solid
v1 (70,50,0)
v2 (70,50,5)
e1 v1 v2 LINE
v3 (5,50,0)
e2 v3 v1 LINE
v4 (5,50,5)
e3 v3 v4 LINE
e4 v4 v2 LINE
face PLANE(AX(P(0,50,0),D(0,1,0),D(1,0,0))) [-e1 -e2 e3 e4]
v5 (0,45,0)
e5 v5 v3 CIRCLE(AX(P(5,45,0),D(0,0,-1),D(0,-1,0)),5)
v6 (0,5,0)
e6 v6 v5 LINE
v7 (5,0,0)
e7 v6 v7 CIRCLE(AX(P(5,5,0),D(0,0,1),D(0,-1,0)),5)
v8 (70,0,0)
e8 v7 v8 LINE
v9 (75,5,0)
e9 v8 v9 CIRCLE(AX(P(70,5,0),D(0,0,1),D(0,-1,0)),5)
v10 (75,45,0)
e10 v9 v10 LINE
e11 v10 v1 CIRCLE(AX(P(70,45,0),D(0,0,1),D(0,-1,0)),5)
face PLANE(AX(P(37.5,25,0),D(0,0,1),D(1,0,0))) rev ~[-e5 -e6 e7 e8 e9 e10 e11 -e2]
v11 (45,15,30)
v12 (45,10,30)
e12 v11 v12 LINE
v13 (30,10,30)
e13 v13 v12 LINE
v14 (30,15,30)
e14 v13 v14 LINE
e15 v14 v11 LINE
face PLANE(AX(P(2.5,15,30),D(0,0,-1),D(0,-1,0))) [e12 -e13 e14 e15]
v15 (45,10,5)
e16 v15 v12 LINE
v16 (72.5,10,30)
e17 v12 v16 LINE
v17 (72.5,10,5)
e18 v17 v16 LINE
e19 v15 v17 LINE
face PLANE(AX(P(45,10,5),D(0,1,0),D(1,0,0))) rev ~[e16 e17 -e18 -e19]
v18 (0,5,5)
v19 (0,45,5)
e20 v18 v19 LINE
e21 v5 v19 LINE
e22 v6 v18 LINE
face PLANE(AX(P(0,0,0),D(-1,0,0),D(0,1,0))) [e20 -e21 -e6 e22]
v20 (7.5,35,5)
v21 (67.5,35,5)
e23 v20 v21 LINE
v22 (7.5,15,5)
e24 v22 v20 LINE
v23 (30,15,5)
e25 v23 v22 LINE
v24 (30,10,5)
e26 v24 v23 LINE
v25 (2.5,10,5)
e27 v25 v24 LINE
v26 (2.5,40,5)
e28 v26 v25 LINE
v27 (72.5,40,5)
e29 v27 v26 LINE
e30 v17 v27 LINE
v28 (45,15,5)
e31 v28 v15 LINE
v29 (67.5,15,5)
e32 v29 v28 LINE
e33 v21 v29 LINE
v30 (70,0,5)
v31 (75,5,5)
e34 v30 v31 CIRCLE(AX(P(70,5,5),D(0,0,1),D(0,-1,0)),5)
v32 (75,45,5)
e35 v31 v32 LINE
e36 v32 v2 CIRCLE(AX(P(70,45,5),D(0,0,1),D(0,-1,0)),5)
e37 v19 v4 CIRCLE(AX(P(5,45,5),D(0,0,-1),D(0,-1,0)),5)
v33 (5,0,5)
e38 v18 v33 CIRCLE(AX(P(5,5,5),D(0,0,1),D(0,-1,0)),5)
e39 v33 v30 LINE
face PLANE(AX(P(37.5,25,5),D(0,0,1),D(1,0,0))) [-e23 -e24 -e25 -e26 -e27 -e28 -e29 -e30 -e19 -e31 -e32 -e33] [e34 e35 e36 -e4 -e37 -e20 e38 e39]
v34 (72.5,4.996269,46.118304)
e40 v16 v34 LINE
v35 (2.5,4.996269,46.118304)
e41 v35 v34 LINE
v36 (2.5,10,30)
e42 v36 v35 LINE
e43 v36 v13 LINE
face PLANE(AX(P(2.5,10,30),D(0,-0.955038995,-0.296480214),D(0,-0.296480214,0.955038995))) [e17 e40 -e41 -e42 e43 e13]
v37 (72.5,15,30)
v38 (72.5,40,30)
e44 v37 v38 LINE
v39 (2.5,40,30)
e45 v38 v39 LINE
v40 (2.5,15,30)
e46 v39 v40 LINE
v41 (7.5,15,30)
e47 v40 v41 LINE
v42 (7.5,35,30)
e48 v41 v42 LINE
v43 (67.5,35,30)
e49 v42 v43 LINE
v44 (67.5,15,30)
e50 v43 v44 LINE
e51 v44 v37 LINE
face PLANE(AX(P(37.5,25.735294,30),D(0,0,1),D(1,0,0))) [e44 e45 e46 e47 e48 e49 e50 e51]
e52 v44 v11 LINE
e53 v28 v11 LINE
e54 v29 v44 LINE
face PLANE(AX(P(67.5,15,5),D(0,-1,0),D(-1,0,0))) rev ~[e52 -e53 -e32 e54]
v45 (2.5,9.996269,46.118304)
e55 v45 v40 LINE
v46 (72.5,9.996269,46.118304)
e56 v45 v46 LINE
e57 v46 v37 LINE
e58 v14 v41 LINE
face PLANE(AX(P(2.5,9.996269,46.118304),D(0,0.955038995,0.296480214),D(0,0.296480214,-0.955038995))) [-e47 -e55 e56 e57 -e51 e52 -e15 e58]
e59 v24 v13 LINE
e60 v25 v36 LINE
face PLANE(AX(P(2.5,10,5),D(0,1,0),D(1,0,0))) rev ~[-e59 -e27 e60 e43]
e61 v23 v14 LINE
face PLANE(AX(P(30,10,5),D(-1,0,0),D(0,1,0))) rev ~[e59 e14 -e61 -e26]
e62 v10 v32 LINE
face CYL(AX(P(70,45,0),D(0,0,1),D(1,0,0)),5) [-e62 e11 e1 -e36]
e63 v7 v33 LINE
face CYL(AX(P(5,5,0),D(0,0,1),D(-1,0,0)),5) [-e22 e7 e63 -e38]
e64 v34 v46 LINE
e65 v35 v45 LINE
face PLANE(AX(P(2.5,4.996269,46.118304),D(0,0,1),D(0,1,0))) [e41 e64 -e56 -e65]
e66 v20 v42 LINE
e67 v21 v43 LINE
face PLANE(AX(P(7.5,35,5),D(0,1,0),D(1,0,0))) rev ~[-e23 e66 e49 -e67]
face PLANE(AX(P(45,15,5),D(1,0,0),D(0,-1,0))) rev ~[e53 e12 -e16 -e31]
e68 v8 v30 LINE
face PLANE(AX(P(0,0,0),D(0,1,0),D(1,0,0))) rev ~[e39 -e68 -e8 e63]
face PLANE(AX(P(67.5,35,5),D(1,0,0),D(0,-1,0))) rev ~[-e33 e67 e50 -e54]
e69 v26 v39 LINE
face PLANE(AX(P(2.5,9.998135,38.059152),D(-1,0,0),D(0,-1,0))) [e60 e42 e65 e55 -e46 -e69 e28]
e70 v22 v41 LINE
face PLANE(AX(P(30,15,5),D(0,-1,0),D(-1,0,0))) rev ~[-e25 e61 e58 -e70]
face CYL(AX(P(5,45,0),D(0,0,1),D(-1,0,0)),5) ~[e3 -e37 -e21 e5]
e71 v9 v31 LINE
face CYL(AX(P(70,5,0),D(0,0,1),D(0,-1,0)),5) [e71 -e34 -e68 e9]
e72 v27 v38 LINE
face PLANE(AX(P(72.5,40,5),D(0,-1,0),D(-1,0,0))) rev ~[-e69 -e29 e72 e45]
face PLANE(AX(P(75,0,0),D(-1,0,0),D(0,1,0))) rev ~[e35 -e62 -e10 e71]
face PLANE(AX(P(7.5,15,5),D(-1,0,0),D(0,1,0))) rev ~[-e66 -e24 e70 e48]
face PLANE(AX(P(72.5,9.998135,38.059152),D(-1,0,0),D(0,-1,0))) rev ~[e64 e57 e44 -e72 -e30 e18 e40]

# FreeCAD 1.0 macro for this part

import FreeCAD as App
import Part
import Sketcher
from FreeCAD import Vector


def edges_at(feature, points):
    """Names of the edges that pass closest to the given points."""
    edges = feature.Shape.Edges
    near = lambda p: min(range(len(edges)), key=lambda i: edges[i].distToShape(Part.Vertex(*p))[0])
    return sorted({f"Edge{near(p) + 1}" for p in points})

doc = App.newDocument("Part")
params = doc.addObject("Spreadsheet::Sheet", "Params")
for row, (alias, value) in enumerate([
    ("sketch1_width", "75 mm"),
    ("sketch1_height", "50 mm"),
    ("pad1_length", "5 mm"),
    ("fillet_radius", "5 mm"),
    ("sketch2_width", "60 mm"),
    ("sketch2_width2", "70 mm"),
    ("sketch2_height", "30 mm"),
    ("sketch2_height2", "5 mm"),
    ("sketch2_height3", "20 mm"),
    ("pad2_length", "25 mm"),
    ("sketch3_width", "5 mm"),
    ("pad3_length", "70 mm"),
], start=1):
    params.set(f"A{row}", alias)
    params.set(f"B{row}", "=" + value)
    params.setAlias(f"B{row}", alias)

body = doc.addObject("PartDesign::Body", "Body")

sketch1 = body.newObject("Sketcher::SketchObject", "Sketch")
sketch1.AttachmentSupport = (doc.getObject("XY_Plane"), [""])
sketch1.MapMode = "FlatFace"
sketch1.addGeometry([
    Part.LineSegment(Vector(0, 50, 0), Vector(0, 0, 0)),
    Part.LineSegment(Vector(0, 0, 0), Vector(75, 0, 0)),
    Part.LineSegment(Vector(75, 0, 0), Vector(75, 50, 0)),
    Part.LineSegment(Vector(75, 50, 0), Vector(0, 50, 0)),
], False)
sketch1.addConstraint([
    Sketcher.Constraint("Coincident", 0, 2, 1, 1),
    Sketcher.Constraint("Coincident", 1, 2, 2, 1),
    Sketcher.Constraint("Coincident", 2, 2, 3, 1),
    Sketcher.Constraint("Coincident", 3, 2, 0, 1),
    Sketcher.Constraint("Vertical", 0),
    Sketcher.Constraint("Horizontal", 1),
    Sketcher.Constraint("Vertical", 2),
    Sketcher.Constraint("Horizontal", 3),
    Sketcher.Constraint("Coincident", 0, 2, -1, 1),
    Sketcher.Constraint("DistanceX", 1, 1, 1, 2, 75.0),
    Sketcher.Constraint("DistanceY", 0, 2, 0, 1, 50.0),
])
sketch1.setExpression("Constraints[9]", "Params.sketch1_width")
sketch1.setExpression("Constraints[10]", "Params.sketch1_height")
pad1 = body.newObject("PartDesign::Pad", "Pad")
pad1.Profile = sketch1
pad1.setExpression("Length", "Params.pad1_length")
doc.recompute()

fillet = body.newObject("PartDesign::Fillet", "Fillet")
fillet.Base = (pad1, edges_at(pad1, [
    (75, 0, 2.5),
    (0, 0, 2.5),
    (0, 50, 2.5),
    (75, 50, 2.5),
]))
fillet.setExpression("Radius", "Params.fillet_radius")

sketch2 = body.newObject("Sketcher::SketchObject", "Sketch001")
sketch2.AttachmentSupport = (doc.getObject("XY_Plane"), [""])
sketch2.MapMode = "FlatFace"
sketch2.AttachmentOffset = App.Placement(Vector(0, 0, 5), App.Rotation())
sketch2.addGeometry([
    Part.LineSegment(Vector(2, 40, 0), Vector(2, 10, 0)),
    Part.LineSegment(Vector(2, 10, 0), Vector(30, 10, 0)),
    Part.LineSegment(Vector(30, 10, 0), Vector(30, 15, 0)),
    Part.LineSegment(Vector(30, 15, 0), Vector(8, 15, 0)),
    Part.LineSegment(Vector(8, 15, 0), Vector(8, 35, 0)),
    Part.LineSegment(Vector(8, 35, 0), Vector(68, 35, 0)),
    Part.LineSegment(Vector(68, 35, 0), Vector(68, 15, 0)),
    Part.LineSegment(Vector(68, 15, 0), Vector(45, 15, 0)),
    Part.LineSegment(Vector(45, 15, 0), Vector(45, 10, 0)),
    Part.LineSegment(Vector(45, 10, 0), Vector(72, 10, 0)),
    Part.LineSegment(Vector(72, 10, 0), Vector(72, 40, 0)),
    Part.LineSegment(Vector(72, 40, 0), Vector(2, 40, 0)),
], False)
sketch2.addConstraint([
    Sketcher.Constraint("Coincident", 0, 2, 1, 1),
    Sketcher.Constraint("Coincident", 1, 2, 2, 1),
    Sketcher.Constraint("Coincident", 2, 2, 3, 1),
    Sketcher.Constraint("Coincident", 3, 2, 4, 1),
    Sketcher.Constraint("Coincident", 4, 2, 5, 1),
    Sketcher.Constraint("Coincident", 5, 2, 6, 1),
    Sketcher.Constraint("Coincident", 6, 2, 7, 1),
    Sketcher.Constraint("Coincident", 7, 2, 8, 1),
    Sketcher.Constraint("Coincident", 8, 2, 9, 1),
    Sketcher.Constraint("Coincident", 9, 2, 10, 1),
    Sketcher.Constraint("Coincident", 10, 2, 11, 1),
    Sketcher.Constraint("Coincident", 11, 2, 0, 1),
    Sketcher.Constraint("Vertical", 0),
    Sketcher.Constraint("Horizontal", 1),
    Sketcher.Constraint("Vertical", 2),
    Sketcher.Constraint("Horizontal", 3),
    Sketcher.Constraint("Vertical", 4),
    Sketcher.Constraint("Horizontal", 5),
    Sketcher.Constraint("Vertical", 6),
    Sketcher.Constraint("Horizontal", 7),
    Sketcher.Constraint("Vertical", 8),
    Sketcher.Constraint("Horizontal", 9),
    Sketcher.Constraint("Vertical", 10),
    Sketcher.Constraint("Horizontal", 11),
    Sketcher.Constraint("Horizontal", 3, 2, 6, 2),
    Sketcher.Constraint("Horizontal", 1, 2, 8, 2),
    Sketcher.Constraint("Equal", 3, 7),
    Sketcher.Constraint("Equal", 1, 9),
    Sketcher.Constraint("DistanceX", 5, 1, 5, 2, 60.0),
    Sketcher.Constraint("DistanceX", 11, 2, 11, 1, 70.0),
    Sketcher.Constraint("DistanceY", 0, 2, 0, 1, 30.0),
    Sketcher.Constraint("DistanceY", 2, 1, 2, 2, 5.0),
    Sketcher.Constraint("DistanceY", 4, 1, 4, 2, 20.0),
    Sketcher.Constraint("DistanceX", 1, 1, 1, 2, 27.5),
    Sketcher.Constraint("DistanceY", -1, 1, 0, 2, 10.0),
    Sketcher.Constraint("DistanceX", -1, 1, 1, 2, 30.0),
])
sketch2.setExpression("Constraints[28]", "Params.sketch2_width")
sketch2.setExpression("Constraints[29]", "Params.sketch2_width2")
sketch2.setExpression("Constraints[30]", "Params.sketch2_height")
sketch2.setExpression("Constraints[31]", "Params.sketch2_height2")
sketch2.setExpression("Constraints[32]", "Params.sketch2_height3")
pad2 = body.newObject("PartDesign::Pad", "Pad001")
pad2.Profile = sketch2
pad2.setExpression("Length", "Params.pad2_length")

sketch3 = body.newObject("Sketcher::SketchObject", "Sketch002")
sketch3.AttachmentSupport = (doc.getObject("YZ_Plane"), [""])
sketch3.MapMode = "FlatFace"
sketch3.AttachmentOffset = App.Placement(Vector(0, 0, 2.5), App.Rotation())
sketch3.addGeometry([
    Part.LineSegment(Vector(15, 30, 0), Vector(10, 30, 0)),
    Part.LineSegment(Vector(10, 30, 0), Vector(5, 46, 0)),
    Part.LineSegment(Vector(5, 46, 0), Vector(10, 46, 0)),
    Part.LineSegment(Vector(10, 46, 0), Vector(15, 30, 0)),
], False)
sketch3.addConstraint([
    Sketcher.Constraint("Coincident", 0, 2, 1, 1),
    Sketcher.Constraint("Coincident", 1, 2, 2, 1),
    Sketcher.Constraint("Coincident", 2, 2, 3, 1),
    Sketcher.Constraint("Coincident", 3, 2, 0, 1),
    Sketcher.Constraint("Horizontal", 0),
    Sketcher.Constraint("Horizontal", 2),
    Sketcher.Constraint("Parallel", 1, 3),
    Sketcher.Constraint("DistanceX", 0, 2, 0, 1, 5.0),
    Sketcher.Constraint("DistanceX", -1, 1, 0, 2, 10.0),
    Sketcher.Constraint("DistanceY", -1, 1, 0, 2, 30.0),
    Sketcher.Constraint("DistanceX", -1, 1, 1, 2, 4.996269),
    Sketcher.Constraint("Distance", 1, 16.877116),
])
sketch3.setExpression("Constraints[7]", "Params.sketch3_width")
pad3 = body.newObject("PartDesign::Pad", "Pad002")
pad3.Profile = sketch3
pad3.setExpression("Length", "Params.pad3_length")

doc.recompute()
